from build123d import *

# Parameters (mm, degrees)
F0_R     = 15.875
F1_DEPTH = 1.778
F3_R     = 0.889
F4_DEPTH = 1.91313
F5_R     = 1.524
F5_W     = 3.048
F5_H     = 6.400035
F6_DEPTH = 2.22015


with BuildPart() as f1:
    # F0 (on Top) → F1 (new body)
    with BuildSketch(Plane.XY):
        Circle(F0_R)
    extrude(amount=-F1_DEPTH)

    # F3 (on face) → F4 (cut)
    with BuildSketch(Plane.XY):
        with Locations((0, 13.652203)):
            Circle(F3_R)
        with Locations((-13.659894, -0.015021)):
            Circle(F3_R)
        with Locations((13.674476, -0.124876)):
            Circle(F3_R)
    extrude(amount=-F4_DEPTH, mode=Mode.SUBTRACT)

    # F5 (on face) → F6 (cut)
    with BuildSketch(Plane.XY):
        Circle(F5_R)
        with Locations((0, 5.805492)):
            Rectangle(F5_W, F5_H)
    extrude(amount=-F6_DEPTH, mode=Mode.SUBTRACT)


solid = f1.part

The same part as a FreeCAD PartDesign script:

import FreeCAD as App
import Part
import Sketcher

V = App.Vector
Q = App.Units.Quantity


def add_polygon(sketch, points):
    """Adds a closed chain of lines whose ends are joined by coincident constraints."""
    first, n = sketch.GeometryCount, len(points)
    for a, b in zip(points, points[1:] + points[:1]):
        sketch.addGeometry(Part.LineSegment(App.Vector(*a, 0), App.Vector(*b, 0)), False)
    for i in range(n):
        sketch.addConstraint(Sketcher.Constraint("Coincident", first + i, 2, first + (i + 1) % n, 1))

doc = App.newDocument("Part")
body = doc.addObject("PartDesign::Body", "Body")

# Sketch on XY plane
sketch1 = doc.addObject("Sketcher::SketchObject", "Sketch")
body.addObject(sketch1)
sketch1.AttachmentSupport = (doc.XY_Plane, [""])
sketch1.MapMode = "FlatFace"
sketch1.addGeometry(Part.Circle(V(0, 0, 0), V(0, 0, 1), 16), False)
sketch1.addConstraint(Sketcher.Constraint("Coincident", 0, 3, -1, 1))
sketch1.addConstraint(Sketcher.Constraint("Diameter", 0, Q("1.25 in")))
pad1 = doc.addObject("PartDesign::Pad", "Pad")
body.addObject(pad1)
pad1.Profile = sketch1
pad1.Length = Q("0.07 in")
pad1.Reversed = True

# Sketch on XY plane
sketch2 = doc.addObject("Sketcher::SketchObject", "Sketch001")
body.addObject(sketch2)
sketch2.AttachmentSupport = (doc.XY_Plane, [""])
sketch2.MapMode = "FlatFace"
sketch2.addGeometry(Part.Circle(V(0, 13.7, 0), V(0, 0, 1), 0.9), False)
sketch2.addGeometry(Part.Circle(V(-13.7, 0, 0), V(0, 0, 1), 0.9), False)
sketch2.addGeometry(Part.Circle(V(13.7, -0.1, 0), V(0, 0, 1), 0.9), False)
sketch2.addConstraint(Sketcher.Constraint("Equal", 0, 1))
sketch2.addConstraint(Sketcher.Constraint("Equal", 1, 2))
sketch2.addConstraint(Sketcher.Constraint("PointOnObject", 0, 3, -2))
sketch2.addConstraint(Sketcher.Constraint("Diameter", 0, Q("0.07 in")))
sketch2.addConstraint(Sketcher.Constraint("DistanceY", 1, 3, -1, 1, Q("0.015021 mm")))
sketch2.addConstraint(Sketcher.Constraint("DistanceY", 2, 3, 0, 3, Q("13.777079 mm")))
sketch2.addConstraint(Sketcher.Constraint("DistanceX", 1, 3, 2, 3, Q("27.33437 mm")))
sketch2.addConstraint(Sketcher.Constraint("DistanceY", -1, 1, 0, 3, Q("13.652203 mm")))
sketch2.addConstraint(Sketcher.Constraint("DistanceX", 1, 3, -1, 1, Q("13.659894 mm")))
pocket1 = doc.addObject("PartDesign::Pocket", "Pocket")
body.addObject(pocket1)
pocket1.Profile = sketch2
pocket1.Length = 1.91313

# Sketch on XY plane
sketch3 = doc.addObject("Sketcher::SketchObject", "Sketch002")
body.addObject(sketch3)
sketch3.AttachmentSupport = (doc.XY_Plane, [""])
sketch3.MapMode = "FlatFace"
sketch3.addGeometry(Part.Circle(V(0, 0, 0), V(0, 0, 1), 1.5), False)  # 0
add_polygon(sketch3, [(-1.5, 9), (-1.5, 2.6), (1.5, 2.6), (1.5, 9)])  # lines 1-4
sketch3.addConstraint(Sketcher.Constraint("Vertical", 1))
sketch3.addConstraint(Sketcher.Constraint("Horizontal", 2))
sketch3.addConstraint(Sketcher.Constraint("Vertical", 3))
sketch3.addConstraint(Sketcher.Constraint("Horizontal", 4))
sketch3.addConstraint(Sketcher.Constraint("Coincident", 0, 3, -1, 1))
sketch3.addConstraint(Sketcher.Constraint("Diameter", 0, Q("0.12 in")))
sketch3.addConstraint(Sketcher.Constraint("DistanceX", 2, 1, 2, 2, Q("0.12 in")))
sketch3.addConstraint(Sketcher.Constraint("DistanceX", 1, 2, -1, 1, Q("0.06 in")))
sketch3.addConstraint(Sketcher.Constraint("DistanceY", 1, 2, 1, 1, Q("6.400035 mm")))
sketch3.addConstraint(Sketcher.Constraint("DistanceY", -1, 1, 3, 2, Q("9.00551 mm")))
pocket2 = doc.addObject("PartDesign::Pocket", "Pocket001")
body.addObject(pocket2)
pocket2.Profile = sketch3
pocket2.Length = 2.22015

doc.recompute()
